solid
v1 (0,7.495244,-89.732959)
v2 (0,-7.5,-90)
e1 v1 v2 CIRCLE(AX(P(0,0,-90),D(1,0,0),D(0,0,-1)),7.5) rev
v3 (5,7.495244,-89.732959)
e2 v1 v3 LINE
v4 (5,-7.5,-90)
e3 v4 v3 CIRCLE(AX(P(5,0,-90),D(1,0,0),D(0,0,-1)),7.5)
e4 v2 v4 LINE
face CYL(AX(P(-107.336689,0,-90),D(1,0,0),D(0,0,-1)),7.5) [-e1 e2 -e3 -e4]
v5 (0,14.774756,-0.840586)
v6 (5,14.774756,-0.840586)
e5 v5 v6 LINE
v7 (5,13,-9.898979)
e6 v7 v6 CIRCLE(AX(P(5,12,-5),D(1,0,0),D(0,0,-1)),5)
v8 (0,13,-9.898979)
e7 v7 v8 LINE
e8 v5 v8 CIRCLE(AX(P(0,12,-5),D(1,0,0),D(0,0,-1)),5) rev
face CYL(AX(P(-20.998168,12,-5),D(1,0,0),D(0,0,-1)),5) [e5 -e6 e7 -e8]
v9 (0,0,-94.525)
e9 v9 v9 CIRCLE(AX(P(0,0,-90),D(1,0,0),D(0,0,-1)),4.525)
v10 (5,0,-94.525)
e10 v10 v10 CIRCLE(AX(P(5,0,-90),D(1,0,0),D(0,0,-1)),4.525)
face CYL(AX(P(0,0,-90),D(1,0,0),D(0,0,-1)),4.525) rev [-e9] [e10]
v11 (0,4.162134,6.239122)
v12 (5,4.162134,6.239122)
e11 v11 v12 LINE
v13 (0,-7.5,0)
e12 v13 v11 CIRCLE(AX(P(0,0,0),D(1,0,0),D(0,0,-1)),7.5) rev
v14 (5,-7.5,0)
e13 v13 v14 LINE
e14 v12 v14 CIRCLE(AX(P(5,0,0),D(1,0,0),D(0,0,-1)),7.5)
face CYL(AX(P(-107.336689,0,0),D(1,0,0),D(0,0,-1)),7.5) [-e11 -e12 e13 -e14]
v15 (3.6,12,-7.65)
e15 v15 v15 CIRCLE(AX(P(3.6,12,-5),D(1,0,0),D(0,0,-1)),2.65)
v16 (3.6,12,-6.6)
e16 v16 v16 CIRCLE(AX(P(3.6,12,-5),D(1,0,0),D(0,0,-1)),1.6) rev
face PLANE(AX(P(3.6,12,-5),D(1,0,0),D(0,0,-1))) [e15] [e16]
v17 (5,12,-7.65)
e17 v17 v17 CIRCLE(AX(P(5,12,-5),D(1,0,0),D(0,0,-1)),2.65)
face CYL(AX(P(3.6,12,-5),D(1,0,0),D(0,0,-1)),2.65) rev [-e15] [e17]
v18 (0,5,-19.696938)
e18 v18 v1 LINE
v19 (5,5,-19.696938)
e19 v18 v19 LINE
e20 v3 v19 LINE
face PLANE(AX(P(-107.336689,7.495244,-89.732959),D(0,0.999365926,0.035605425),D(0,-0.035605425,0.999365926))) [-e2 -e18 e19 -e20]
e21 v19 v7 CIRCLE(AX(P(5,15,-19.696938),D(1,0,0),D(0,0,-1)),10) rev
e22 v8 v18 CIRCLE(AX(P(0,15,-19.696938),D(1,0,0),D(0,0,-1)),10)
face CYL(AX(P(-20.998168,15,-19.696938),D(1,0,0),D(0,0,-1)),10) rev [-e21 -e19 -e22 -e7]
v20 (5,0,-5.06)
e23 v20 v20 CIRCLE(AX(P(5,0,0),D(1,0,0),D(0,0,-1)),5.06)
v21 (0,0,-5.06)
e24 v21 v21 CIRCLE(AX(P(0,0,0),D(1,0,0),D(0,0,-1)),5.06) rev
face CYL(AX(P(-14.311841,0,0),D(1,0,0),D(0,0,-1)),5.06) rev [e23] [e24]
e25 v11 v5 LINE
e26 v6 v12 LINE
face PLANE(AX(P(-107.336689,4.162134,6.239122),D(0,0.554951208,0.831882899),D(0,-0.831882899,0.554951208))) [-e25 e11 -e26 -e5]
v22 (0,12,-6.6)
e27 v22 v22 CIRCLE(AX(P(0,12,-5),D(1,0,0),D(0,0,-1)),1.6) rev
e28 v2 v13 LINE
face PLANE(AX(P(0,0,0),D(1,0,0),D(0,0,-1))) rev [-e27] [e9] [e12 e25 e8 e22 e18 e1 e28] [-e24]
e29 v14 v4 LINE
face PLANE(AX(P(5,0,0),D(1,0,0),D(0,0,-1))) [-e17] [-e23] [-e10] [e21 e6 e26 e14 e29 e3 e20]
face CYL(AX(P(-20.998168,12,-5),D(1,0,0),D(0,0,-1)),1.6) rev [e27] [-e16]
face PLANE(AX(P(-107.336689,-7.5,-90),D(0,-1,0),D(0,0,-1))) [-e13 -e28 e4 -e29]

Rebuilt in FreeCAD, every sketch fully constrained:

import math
import FreeCAD as App
import Part
import Sketcher

V = App.Vector
Q = App.Units.Quantity


def edges_at(feature, points):
    """Names of the edges that pass closest to the given points."""
    edges = feature.Shape.Edges
    near = lambda p: min(range(len(edges)), key=lambda i: edges[i].distToShape(Part.Vertex(*p))[0])
    return sorted({f"Edge{near(p) + 1}" for p in points})

doc = App.newDocument("Part")
body = doc.addObject("PartDesign::Body", "Body")

# Sketch on YZ plane
sketch1 = body.newObject("Sketcher::SketchObject", "Sketch")
sketch1.AttachmentSupport = (doc.getObject("YZ_Plane"), [""])
sketch1.MapMode = "FlatFace"
sketch1.addGeometry(Part.LineSegment(V(5, -90, 0), V(5, 0, 0)), False)
sketch1.addGeometry(Part.ArcOfCircle(Part.Circle(V(0, 0, 0), V(0, 0, 1), 5), math.radians(0), math.radians(180)), False)
sketch1.addGeometry(Part.LineSegment(V(-5, 0, 0), V(-5, -90, 0)), False)
sketch1.addGeometry(Part.ArcOfCircle(Part.Circle(V(0, -90, 0), V(0, 0, 1), 5), math.radians(180), math.radians(360)), False)
sketch1.addGeometry(Part.Circle(V(0, -90, 0), V(0, 0, 1), 2.05), False)
sketch1.addGeometry(Part.Circle(V(0, 0, 0), V(0, 0, 1), 2.5), False)
sketch1.addConstraint(Sketcher.Constraint("Tangent", 0, 2, 1, 1))
sketch1.addConstraint(Sketcher.Constraint("Tangent", 1, 2, 2, 1))
sketch1.addConstraint(Sketcher.Constraint("Tangent", 2, 2, 3, 1))
sketch1.addConstraint(Sketcher.Constraint("Tangent", 3, 2, 0, 1))
sketch1.addConstraint(Sketcher.Constraint("Vertical", 0))
sketch1.addConstraint(Sketcher.Constraint("Vertical", 2))
sketch1.addConstraint(Sketcher.Constraint("Coincident", 1, 3, -1, 1))
sketch1.addConstraint(Sketcher.Constraint("Coincident", 5, 3, -1, 1))
sketch1.addConstraint(Sketcher.Constraint("Coincident", 4, 3, 3, 3))
sketch1.addConstraint(Sketcher.Constraint("Diameter", 5, 5.0))
sketch1.addConstraint(Sketcher.Constraint("Radius", 1, 5.0))
sketch1.addConstraint(Sketcher.Constraint("Diameter", 4, 4.1))
sketch1.addConstraint(Sketcher.Constraint("DistanceY", 0, 1, 0, 2, 90.0))
pad1 = body.newObject("PartDesign::Pad", "Pad")
pad1.Profile = sketch1
pad1.Length = 5

# Sketch on YZ plane
sketch2 = body.newObject("Sketcher::SketchObject", "Sketch001")
sketch2.AttachmentSupport = (doc.getObject("YZ_Plane"), [""])
sketch2.MapMode = "FlatFace"
sketch2.AttachmentOffset = App.Placement(V(0, 0, 5), App.Rotation())
sketch2.addGeometry(Part.LineSegment(V(5, -48.200372, 0), V(7.043177, -49.914801, 0)), False)
sketch2.addGeometry(Part.ArcOfCircle(Part.Circle(V(10, -46.390996, 0), V(0, 0, 1), 4.6), math.radians(-130), math.radians(50)), False)
sketch2.addGeometry(Part.LineSegment(V(12.956823, -42.867192, 0), V(5, -36.190625, 0)), False)
sketch2.addGeometry(Part.LineSegment(V(5, -36.190625, 0), V(5, -48.200372, 0)), False)
sketch2.addGeometry(Part.Circle(V(10, -46.390996, 0), V(0, 0, 1), 2.5), False)
sketch2.addConstraint(Sketcher.Constraint("Tangent", 0, 2, 1, 1))
sketch2.addConstraint(Sketcher.Constraint("Tangent", 1, 2, 2, 1))
sketch2.addConstraint(Sketcher.Constraint("Coincident", 2, 2, 3, 1))
sketch2.addConstraint(Sketcher.Constraint("Coincident", 3, 2, 0, 1))
sketch2.addConstraint(Sketcher.Constraint("Vertical", 3))
sketch2.addConstraint(Sketcher.Constraint("Coincident", 4, 3, 1, 3))
sketch2.addConstraint(Sketcher.Constraint("Parallel", 0, 2))
sketch2.addConstraint(Sketcher.Constraint("Diameter", 4, 5.0))
sketch2.addConstraint(Sketcher.Constraint("Radius", 1, 4.6))
sketch2.addConstraint(Sketcher.Constraint("Angle", 0, Q("-40 deg")))
sketch2.addConstraint(Sketcher.Constraint("DistanceX", -1, 1, 1, 3, 10.0))
sketch2.addConstraint(Sketcher.Constraint("DistanceX", -1, 1, 2, 2, 5.0))
sketch2.addConstraint(Sketcher.Constraint("DistanceY", 0, 2, -1, 1, 49.914801))
pad2 = body.newObject("PartDesign::Pad", "Pad001")
pad2.Profile = sketch2
pad2.Length = 5
pad2.Reversed = True
doc.recompute()

fillet = body.newObject("PartDesign::Fillet", "Fillet")
fillet.Base = (pad2, edges_at(pad2, [(2.5, 5, -48.2)]))
fillet.Radius = 6
doc.recompute()

fillet2 = body.newObject("PartDesign::Fillet", "Fillet001")
fillet2.Base = (fillet, edges_at(fillet, [(2.5, 5, -36.191)]))
fillet2.Radius = 10

# Sketch on YZ plane
sketch3 = body.newObject("Sketcher::SketchObject", "Sketch002")
sketch3.AttachmentSupport = (doc.getObject("YZ_Plane"), [""])
sketch3.MapMode = "FlatFace"
sketch3.AttachmentOffset = App.Placement(V(0, 0, 5), App.Rotation())
sketch3.addGeometry(Part.LineSegment(V(13.923077, -0.384615, 0), V(1.923077, 4.615385, 0)), False)
sketch3.addGeometry(Part.ArcOfCircle(Part.Circle(V(0, 0, 0), V(0, 0, 1), 5), math.radians(0), math.radians(67.380135)), False)
sketch3.addGeometry(Part.LineSegment(V(5, 0, 0), V(5, -7.5, 0)), False)
sketch3.addGeometry(Part.LineSegment(V(5, -7.5, 0), V(10.076923, -9.615385, 0)), False)
sketch3.addGeometry(Part.ArcOfCircle(Part.Circle(V(12, -5, 0), V(0, 0, 1), 5), math.radians(-112.619865), math.radians(67.380135)), False)
sketch3.addGeometry(Part.Circle(V(12, -5, 0), V(0, 0, 1), 1.6), False)
sketch3.addConstraint(Sketcher.Constraint("Tangent", 0, 2, 1, 2))
sketch3.addConstraint(Sketcher.Constraint("Tangent", 1, 1, 2, 1))
sketch3.addConstraint(Sketcher.Constraint("Coincident", 2, 2, 3, 1))
sketch3.addConstraint(Sketcher.Constraint("Tangent", 3, 2, 4, 1))
sketch3.addConstraint(Sketcher.Constraint("Tangent", 4, 2, 0, 1))
sketch3.addConstraint(Sketcher.Constraint("Vertical", 2))
sketch3.addConstraint(Sketcher.Constraint("Coincident", 1, 3, -1, 1))
sketch3.addConstraint(Sketcher.Constraint("Coincident", 5, 3, 4, 3))
sketch3.addConstraint(Sketcher.Constraint("Equal", 1, 4))
sketch3.addConstraint(Sketcher.Constraint("Parallel", 0, 3))
sketch3.addConstraint(Sketcher.Constraint("Radius", 1, 5.0))
sketch3.addConstraint(Sketcher.Constraint("Diameter", 5, 3.2))
sketch3.addConstraint(Sketcher.Constraint("Distance", 0, 13.0))
sketch3.addConstraint(Sketcher.Constraint("DistanceY", 2, 2, 2, 1, 7.5))
pad3 = body.newObject("PartDesign::Pad", "Pad002")
pad3.Profile = sketch3
pad3.Length = 5
pad3.Reversed = True
doc.recompute()

fillet3 = body.newObject("PartDesign::Fillet", "Fillet002")
fillet3.Base = (pad3, edges_at(pad3, [(2.5, 5, -7.5)]))
fillet3.Radius = 10

# Sketch on YZ plane
sketch4 = body.newObject("Sketcher::SketchObject", "Sketch003")
sketch4.AttachmentSupport = (doc.getObject("YZ_Plane"), [""])
sketch4.MapMode = "FlatFace"
sketch4.AttachmentOffset = App.Placement(V(0, 0, 5), App.Rotation())
sketch4.addGeometry(Part.LineSegment(V(20, -25.612243, 0), V(5, -25.612243, 0)), False)
sketch4.addGeometry(Part.LineSegment(V(5, -25.612243, 0), V(5, -73.471861, 0)), False)
sketch4.addGeometry(Part.LineSegment(V(5, -73.471861, 0), V(20, -73.471861, 0)), False)
sketch4.addGeometry(Part.LineSegment(V(20, -73.471861, 0), V(20, -25.612243, 0)), False)
sketch4.addConstraint(Sketcher.Constraint("Coincident", 0, 2, 1, 1))
sketch4.addConstraint(Sketcher.Constraint("Coincident", 1, 2, 2, 1))
sketch4.addConstraint(Sketcher.Constraint("Coincident", 2, 2, 3, 1))
sketch4.addConstraint(Sketcher.Constraint("Coincident", 3, 2, 0, 1))
sketch4.addConstraint(Sketcher.Constraint("Horizontal", 0))
sketch4.addConstraint(Sketcher.Constraint("Vertical", 1))
sketch4.addConstraint(Sketcher.Constraint("Horizontal", 2))
sketch4.addConstraint(Sketcher.Constraint("Vertical", 3))
sketch4.addConstraint(Sketcher.Constraint("DistanceX", 0, 2, 0, 1, 15.0))
sketch4.addConstraint(Sketcher.Constraint("DistanceX", -1, 1, 0, 2, 5.0))
sketch4.addConstraint(Sketcher.Constraint("DistanceY", 1, 2, 1, 1, 47.859617))
sketch4.addConstraint(Sketcher.Constraint("DistanceY", 1, 2, -1, 1, 73.471861))
pocket1 = body.newObject("PartDesign::Pocket", "Pocket")
pocket1.Profile = sketch4
pocket1.Type = "ThroughAll"

# Sketch on YZ plane
sketch5 = body.newObject("Sketcher::SketchObject", "Sketch004")
sketch5.AttachmentSupport = (doc.getObject("YZ_Plane"), [""])
sketch5.MapMode = "FlatFace"
sketch5.AttachmentOffset = App.Placement(V(0, 0, 5), App.Rotation())
sketch5.addGeometry(Part.Circle(V(12, -5, 0), V(0, 0, 1), 2.65), False)
sketch5.addConstraint(Sketcher.Constraint("Diameter", 0, 5.3))
sketch5.addConstraint(Sketcher.Constraint("DistanceX", -1, 1, 0, 3, 12.0))
sketch5.addConstraint(Sketcher.Constraint("DistanceY", 0, 3, -1, 1, 5.0))
pocket2 = body.newObject("PartDesign::Pocket", "Pocket001")
pocket2.Profile = sketch5
pocket2.Length = 1.4

# Sketch on YZ plane
sketch6 = body.newObject("Sketcher::SketchObject", "Sketch005")
sketch6.AttachmentSupport = (doc.getObject("YZ_Plane"), [""])
sketch6.MapMode = "FlatFace"
sketch6.AttachmentOffset = App.Placement(V(0, 0, 5), App.Rotation())
sketch6.addGeometry(Part.LineSegment(V(7.495244, -89.732959, 0), V(5, -19.696938, 0)), False)
sketch6.addGeometry(Part.LineSegment(V(5, -19.696938, 0), V(5, -90, 0)), False)
sketch6.addGeometry(Part.ArcOfCircle(Part.Circle(V(0, -90, 0), V(0, 0, 1), 5), math.radians(180), math.radians(360)), False)
sketch6.addGeometry(Part.LineSegment(V(-5, -90, 0), V(-5, 0, 0)), False)
sketch6.addGeometry(Part.ArcOfCircle(Part.Circle(V(0, 0, 0), V(0, 0, 1), 5), math.radians(67.380135), math.radians(180)), False)
sketch6.addGeometry(Part.LineSegment(V(1.923077, 4.615385, 0), V(13.923077, -0.384615, 0)), False)
sketch6.addGeometry(Part.ArcOfCircle(Part.Circle(V(12, -5, 0), V(0, 0, 1), 5), math.radians(56.292646), math.radians(67.380135)), False)
sketch6.addGeometry(Part.LineSegment(V(14.774756, -0.840586, 0), V(4.162134, 6.239122, 0)), False)
sketch6.addGeometry(Part.ArcOfCircle(Part.Circle(V(0, 0, 0), V(0, 0, 1), 7.5), math.radians(56.292646), math.radians(180)), False)
sketch6.addGeometry(Part.LineSegment(V(-7.5, 0, 0), V(-7.5, -90, 0)), False)
sketch6.addGeometry(Part.ArcOfCircle(Part.Circle(V(0, -90, 0), V(0, 0, 1), 7.5), math.radians(180), math.radians(362.040472)), False)
sketch6.addConstraint(Sketcher.Constraint("Coincident", 0, 2, 1, 1))
sketch6.addConstraint(Sketcher.Constraint("Tangent", 1, 2, 2, 2))
sketch6.addConstraint(Sketcher.Constraint("Tangent", 2, 1, 3, 1))
sketch6.addConstraint(Sketcher.Constraint("Tangent", 3, 2, 4, 2))
sketch6.addConstraint(Sketcher.Constraint("Tangent", 4, 1, 5, 1))
sketch6.addConstraint(Sketcher.Constraint("Tangent", 5, 2, 6, 2))
sketch6.addConstraint(Sketcher.Constraint("Tangent", 6, 1, 7, 1))
sketch6.addConstraint(Sketcher.Constraint("Tangent", 7, 2, 8, 1))
sketch6.addConstraint(Sketcher.Constraint("Tangent", 8, 2, 9, 1))
sketch6.addConstraint(Sketcher.Constraint("Tangent", 9, 2, 10, 1))
sketch6.addConstraint(Sketcher.Constraint("Tangent", 10, 2, 0, 1))
sketch6.addConstraint(Sketcher.Constraint("Vertical", 1))
sketch6.addConstraint(Sketcher.Constraint("Vertical", 3))
sketch6.addConstraint(Sketcher.Constraint("Vertical", 9))
sketch6.addConstraint(Sketcher.Constraint("Coincident", 4, 3, -1, 1))
sketch6.addConstraint(Sketcher.Constraint("Coincident", 8, 3, -1, 1))
sketch6.addConstraint(Sketcher.Constraint("Coincident", 10, 3, 2, 3))
sketch6.addConstraint(Sketcher.Constraint("Equal", 2, 4))
sketch6.addConstraint(Sketcher.Constraint("Equal", 4, 6))
sketch6.addConstraint(Sketcher.Constraint("Radius", 2, 5.0))
sketch6.addConstraint(Sketcher.Constraint("Radius", 8, 7.5))
sketch6.addConstraint(Sketcher.Constraint("DistanceY", 3, 1, 3, 2, 90.0))
sketch6.addConstraint(Sketcher.Constraint("Distance", 5, 13.0))
sketch6.addConstraint(Sketcher.Constraint("DistanceX", -1, 1, 6, 3, 12.0))
sketch6.addConstraint(Sketcher.Constraint("DistanceY", 1, 2, 1, 1, 70.303062))
pad4 = body.newObject("PartDesign::Pad", "Pad003")
pad4.Profile = sketch6
pad4.Length = 5
pad4.Reversed = True

# Sketch on YZ plane
sketch7 = body.newObject("Sketcher::SketchObject", "Sketch006")
sketch7.AttachmentSupport = (doc.getObject("YZ_Plane"), [""])
sketch7.MapMode = "FlatFace"
sketch7.AttachmentOffset = App.Placement(V(0, 0, 5), App.Rotation())
sketch7.addGeometry(Part.Circle(V(0, -90, 0), V(0, 0, 1), 4.525), False)
sketch7.addConstraint(Sketcher.Constraint("PointOnObject", 0, 3, -2))
sketch7.addConstraint(Sketcher.Constraint("Diameter", 0, 9.05))
sketch7.addConstraint(Sketcher.Constraint("DistanceY", 0, 3, -1, 1, 90.0))
pocket3 = body.newObject("PartDesign::Pocket", "Pocket002")
pocket3.Profile = sketch7
pocket3.Type = "ThroughAll"

# Sketch on YZ plane
sketch8 = body.newObject("Sketcher::SketchObject", "Sketch007")
sketch8.AttachmentSupport = (doc.getObject("YZ_Plane"), [""])
sketch8.MapMode = "FlatFace"
sketch8.AttachmentOffset = App.Placement(V(0, 0, 5), App.Rotation())
sketch8.addGeometry(Part.Circle(V(0, 0, 0), V(0, 0, 1), 5.06), False)
sketch8.addConstraint(Sketcher.Constraint("Coincident", 0, 3, -1, 1))
sketch8.addConstraint(Sketcher.Constraint("Diameter", 0, 10.12))
pocket4 = body.newObject("PartDesign::Pocket", "Pocket003")
pocket4.Profile = sketch8
pocket4.Length = 5

doc.recompute()
